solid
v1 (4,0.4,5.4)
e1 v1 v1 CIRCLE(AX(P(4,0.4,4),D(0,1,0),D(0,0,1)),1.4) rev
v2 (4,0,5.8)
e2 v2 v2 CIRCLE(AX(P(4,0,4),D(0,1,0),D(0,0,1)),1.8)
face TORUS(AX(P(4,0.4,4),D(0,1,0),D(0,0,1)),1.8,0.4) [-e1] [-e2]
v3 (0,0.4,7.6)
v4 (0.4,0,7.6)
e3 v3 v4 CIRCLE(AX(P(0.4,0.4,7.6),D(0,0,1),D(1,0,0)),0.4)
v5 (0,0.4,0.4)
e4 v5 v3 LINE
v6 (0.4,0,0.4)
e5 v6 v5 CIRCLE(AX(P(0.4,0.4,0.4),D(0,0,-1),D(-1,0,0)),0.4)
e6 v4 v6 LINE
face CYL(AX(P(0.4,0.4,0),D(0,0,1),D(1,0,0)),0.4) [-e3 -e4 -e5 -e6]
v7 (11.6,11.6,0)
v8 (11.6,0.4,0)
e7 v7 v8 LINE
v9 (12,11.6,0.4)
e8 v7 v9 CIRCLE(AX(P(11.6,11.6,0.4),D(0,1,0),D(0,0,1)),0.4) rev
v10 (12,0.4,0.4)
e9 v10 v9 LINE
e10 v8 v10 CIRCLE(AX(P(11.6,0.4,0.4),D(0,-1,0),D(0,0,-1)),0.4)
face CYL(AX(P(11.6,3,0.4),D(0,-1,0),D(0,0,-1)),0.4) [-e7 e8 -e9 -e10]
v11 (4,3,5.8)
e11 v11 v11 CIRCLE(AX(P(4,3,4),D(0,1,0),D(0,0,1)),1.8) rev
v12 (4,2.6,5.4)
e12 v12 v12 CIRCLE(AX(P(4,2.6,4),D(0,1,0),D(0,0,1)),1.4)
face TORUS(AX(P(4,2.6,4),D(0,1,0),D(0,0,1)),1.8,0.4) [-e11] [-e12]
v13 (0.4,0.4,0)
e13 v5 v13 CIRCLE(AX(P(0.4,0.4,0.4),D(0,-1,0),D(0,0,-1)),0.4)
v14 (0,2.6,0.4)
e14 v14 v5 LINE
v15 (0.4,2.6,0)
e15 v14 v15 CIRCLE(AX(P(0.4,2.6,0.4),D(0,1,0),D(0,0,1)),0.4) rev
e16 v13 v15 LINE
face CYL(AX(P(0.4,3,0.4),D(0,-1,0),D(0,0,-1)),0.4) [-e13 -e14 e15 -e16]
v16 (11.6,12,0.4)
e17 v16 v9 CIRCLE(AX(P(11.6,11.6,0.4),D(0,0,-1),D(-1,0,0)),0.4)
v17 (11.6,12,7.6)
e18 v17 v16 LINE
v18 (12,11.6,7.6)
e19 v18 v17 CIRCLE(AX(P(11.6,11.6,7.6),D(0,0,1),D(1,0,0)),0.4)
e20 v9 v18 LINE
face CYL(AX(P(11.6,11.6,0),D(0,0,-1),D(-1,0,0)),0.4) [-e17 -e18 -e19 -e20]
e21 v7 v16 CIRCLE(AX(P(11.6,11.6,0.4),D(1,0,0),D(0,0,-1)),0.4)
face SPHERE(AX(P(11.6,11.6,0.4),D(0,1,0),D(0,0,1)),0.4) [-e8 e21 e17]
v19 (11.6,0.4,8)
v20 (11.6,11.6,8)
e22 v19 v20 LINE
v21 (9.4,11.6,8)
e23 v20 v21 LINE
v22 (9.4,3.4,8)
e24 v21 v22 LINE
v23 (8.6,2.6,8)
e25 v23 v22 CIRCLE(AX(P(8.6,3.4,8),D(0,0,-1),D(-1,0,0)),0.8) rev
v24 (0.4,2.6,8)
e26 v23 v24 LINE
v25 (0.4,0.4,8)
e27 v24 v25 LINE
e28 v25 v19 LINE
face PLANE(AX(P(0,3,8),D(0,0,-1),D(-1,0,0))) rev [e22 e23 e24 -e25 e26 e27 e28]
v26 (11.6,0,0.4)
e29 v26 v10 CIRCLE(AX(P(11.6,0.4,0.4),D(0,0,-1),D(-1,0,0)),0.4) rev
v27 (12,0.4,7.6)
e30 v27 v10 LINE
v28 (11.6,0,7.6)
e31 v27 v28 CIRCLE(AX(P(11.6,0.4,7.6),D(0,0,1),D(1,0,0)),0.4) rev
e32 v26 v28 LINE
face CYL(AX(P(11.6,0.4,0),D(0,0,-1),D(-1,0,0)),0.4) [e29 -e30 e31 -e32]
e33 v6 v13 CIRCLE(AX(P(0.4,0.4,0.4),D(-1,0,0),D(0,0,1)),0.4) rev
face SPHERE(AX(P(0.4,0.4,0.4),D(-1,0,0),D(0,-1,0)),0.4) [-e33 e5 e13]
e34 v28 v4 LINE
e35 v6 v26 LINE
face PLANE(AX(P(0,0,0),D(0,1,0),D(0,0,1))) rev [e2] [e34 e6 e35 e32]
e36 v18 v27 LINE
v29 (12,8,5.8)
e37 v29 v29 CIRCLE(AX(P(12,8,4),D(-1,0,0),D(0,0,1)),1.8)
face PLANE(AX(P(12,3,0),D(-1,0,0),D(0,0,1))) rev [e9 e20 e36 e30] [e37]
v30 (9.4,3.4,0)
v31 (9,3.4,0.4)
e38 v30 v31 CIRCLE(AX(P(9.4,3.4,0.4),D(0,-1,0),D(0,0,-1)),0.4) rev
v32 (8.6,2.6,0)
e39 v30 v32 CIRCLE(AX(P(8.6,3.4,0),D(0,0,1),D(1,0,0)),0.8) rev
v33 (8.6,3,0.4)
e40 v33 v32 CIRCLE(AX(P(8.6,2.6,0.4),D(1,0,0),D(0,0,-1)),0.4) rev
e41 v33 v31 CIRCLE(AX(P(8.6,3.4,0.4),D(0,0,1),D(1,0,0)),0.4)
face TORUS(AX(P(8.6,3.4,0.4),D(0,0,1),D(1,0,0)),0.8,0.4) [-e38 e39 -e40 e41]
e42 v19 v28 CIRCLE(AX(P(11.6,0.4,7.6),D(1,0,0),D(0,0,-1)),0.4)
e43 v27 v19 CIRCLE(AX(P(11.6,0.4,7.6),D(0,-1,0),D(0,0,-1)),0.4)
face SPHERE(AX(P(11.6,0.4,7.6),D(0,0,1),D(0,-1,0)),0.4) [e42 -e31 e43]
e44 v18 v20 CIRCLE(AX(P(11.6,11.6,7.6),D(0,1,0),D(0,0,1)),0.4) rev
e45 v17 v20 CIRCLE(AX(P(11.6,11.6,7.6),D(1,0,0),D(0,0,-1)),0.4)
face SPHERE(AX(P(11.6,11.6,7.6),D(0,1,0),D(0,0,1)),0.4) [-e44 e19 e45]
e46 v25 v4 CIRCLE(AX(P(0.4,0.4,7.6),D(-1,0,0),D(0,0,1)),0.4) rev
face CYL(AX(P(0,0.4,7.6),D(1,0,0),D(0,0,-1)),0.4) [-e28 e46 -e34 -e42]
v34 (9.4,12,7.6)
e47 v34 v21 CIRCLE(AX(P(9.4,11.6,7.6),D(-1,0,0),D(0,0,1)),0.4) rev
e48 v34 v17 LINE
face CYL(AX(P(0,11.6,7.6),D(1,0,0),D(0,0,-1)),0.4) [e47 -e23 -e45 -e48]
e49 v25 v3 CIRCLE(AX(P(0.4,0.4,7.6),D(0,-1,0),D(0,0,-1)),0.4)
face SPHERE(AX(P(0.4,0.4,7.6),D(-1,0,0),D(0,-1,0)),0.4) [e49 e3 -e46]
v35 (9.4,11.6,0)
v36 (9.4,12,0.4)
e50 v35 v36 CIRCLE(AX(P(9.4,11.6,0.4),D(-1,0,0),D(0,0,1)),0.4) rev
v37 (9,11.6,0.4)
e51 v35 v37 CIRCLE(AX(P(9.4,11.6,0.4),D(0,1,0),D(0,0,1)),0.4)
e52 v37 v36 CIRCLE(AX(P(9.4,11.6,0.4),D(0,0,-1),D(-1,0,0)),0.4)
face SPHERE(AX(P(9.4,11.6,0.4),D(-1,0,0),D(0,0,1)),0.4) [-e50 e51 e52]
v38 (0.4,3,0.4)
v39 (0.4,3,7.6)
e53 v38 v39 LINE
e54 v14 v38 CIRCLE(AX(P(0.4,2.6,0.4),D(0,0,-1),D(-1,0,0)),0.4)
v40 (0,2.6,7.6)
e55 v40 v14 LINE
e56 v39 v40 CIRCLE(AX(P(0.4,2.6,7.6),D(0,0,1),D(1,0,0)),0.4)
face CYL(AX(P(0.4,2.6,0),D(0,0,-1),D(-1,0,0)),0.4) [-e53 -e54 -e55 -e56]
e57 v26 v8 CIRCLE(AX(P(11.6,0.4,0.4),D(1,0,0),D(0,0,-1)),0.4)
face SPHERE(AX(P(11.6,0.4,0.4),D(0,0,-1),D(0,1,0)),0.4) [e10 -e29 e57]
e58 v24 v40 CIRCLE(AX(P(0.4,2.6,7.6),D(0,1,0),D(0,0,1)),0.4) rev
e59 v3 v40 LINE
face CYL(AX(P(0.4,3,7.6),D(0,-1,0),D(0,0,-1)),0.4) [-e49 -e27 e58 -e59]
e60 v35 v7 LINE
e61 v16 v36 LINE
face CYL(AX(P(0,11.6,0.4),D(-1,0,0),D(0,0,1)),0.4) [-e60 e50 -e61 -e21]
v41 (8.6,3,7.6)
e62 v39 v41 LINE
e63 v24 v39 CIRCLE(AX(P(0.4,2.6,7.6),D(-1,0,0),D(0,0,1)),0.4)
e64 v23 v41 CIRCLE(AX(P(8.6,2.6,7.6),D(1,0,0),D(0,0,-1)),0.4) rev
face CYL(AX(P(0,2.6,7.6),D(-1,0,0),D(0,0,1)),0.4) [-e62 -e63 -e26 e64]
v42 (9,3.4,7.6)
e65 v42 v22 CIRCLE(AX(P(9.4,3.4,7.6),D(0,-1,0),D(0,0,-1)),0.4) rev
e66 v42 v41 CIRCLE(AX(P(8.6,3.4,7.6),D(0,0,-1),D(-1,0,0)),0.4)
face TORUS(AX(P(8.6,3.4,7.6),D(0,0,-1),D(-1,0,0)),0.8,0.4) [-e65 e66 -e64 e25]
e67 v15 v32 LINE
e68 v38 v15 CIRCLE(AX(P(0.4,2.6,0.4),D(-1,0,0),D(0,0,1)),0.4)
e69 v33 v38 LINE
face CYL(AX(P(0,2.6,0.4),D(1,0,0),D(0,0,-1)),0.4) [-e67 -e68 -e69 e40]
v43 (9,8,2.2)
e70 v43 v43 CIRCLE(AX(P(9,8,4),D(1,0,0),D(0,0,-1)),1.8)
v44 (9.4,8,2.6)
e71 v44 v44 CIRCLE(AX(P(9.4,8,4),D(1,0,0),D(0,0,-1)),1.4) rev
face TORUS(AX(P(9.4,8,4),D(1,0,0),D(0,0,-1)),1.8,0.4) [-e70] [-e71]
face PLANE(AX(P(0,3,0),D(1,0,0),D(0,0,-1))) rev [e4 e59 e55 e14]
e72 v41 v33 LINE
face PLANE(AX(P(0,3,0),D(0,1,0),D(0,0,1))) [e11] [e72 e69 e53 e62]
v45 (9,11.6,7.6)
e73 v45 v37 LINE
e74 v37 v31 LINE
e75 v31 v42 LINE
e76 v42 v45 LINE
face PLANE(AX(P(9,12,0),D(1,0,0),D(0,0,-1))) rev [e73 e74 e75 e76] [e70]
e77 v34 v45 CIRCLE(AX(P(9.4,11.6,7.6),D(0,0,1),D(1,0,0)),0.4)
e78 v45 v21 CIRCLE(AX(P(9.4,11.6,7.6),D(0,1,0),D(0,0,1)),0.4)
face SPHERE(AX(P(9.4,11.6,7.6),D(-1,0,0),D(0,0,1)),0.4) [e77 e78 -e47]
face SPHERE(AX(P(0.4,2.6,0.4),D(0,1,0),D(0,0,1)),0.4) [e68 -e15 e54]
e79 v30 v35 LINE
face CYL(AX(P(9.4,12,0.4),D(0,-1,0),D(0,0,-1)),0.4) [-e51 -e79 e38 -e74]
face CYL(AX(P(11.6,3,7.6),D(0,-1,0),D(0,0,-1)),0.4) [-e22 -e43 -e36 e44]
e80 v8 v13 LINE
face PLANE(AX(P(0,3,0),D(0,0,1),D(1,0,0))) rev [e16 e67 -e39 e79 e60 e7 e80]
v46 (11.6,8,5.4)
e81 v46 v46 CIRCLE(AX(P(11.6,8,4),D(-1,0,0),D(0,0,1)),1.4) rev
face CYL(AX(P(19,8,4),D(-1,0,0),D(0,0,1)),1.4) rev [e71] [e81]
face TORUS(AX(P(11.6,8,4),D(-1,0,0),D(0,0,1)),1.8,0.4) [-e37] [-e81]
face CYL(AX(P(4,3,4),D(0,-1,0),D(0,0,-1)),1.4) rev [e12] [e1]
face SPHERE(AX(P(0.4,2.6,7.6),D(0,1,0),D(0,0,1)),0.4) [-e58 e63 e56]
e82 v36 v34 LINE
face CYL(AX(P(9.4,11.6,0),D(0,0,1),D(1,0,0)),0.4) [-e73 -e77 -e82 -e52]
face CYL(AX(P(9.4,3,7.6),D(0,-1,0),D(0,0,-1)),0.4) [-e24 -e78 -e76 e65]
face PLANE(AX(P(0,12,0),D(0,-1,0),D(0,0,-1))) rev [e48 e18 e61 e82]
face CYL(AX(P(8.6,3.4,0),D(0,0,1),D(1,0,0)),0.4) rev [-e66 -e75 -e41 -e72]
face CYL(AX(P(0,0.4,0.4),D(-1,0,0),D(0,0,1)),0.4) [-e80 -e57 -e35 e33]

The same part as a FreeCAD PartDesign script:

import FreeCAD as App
import Part
import Sketcher

V = App.Vector
Q = App.Units.Quantity

doc = App.newDocument("Part")
body = doc.addObject("PartDesign::Body", "Body")

# Sketch on XZ plane
sketch1 = body.newObject("Sketcher::SketchObject", "Sketch")
sketch1.AttachmentSupport = (doc.getObject("XZ_Plane"), [""])
sketch1.MapMode = "FlatFace"
sketch1.addGeometry([
    Part.LineSegment(V(0, 0, 0), V(0, 8, 0)),  # 0
    Part.LineSegment(V(0, 8, 0), V(12, 8, 0)),  # 1
    Part.LineSegment(V(12, 8, 0), V(12, 0, 0)),  # 2
    Part.LineSegment(V(12, 0, 0), V(0, 0, 0)),  # 3
    Part.Circle(V(4, 4, 0), V(0, 0, 1), 1.4),  # 4
], False)
sketch1.addConstraint([
    Sketcher.Constraint("Coincident", 0, 2, 1, 1),
    Sketcher.Constraint("Coincident", 1, 2, 2, 1),
    Sketcher.Constraint("Coincident", 2, 2, 3, 1),
    Sketcher.Constraint("Coincident", 3, 2, 0, 1),
    Sketcher.Constraint("Vertical", 0),
    Sketcher.Constraint("Horizontal", 1),
    Sketcher.Constraint("Vertical", 2),
    Sketcher.Constraint("Horizontal", 3),
    Sketcher.Constraint("Coincident", 3, 2, -1, 1),
    Sketcher.Constraint("Diameter", 4, Q("2.8 mm")),
    Sketcher.Constraint("DistanceX", 1, 1, 1, 2, Q("12 mm")),
    Sketcher.Constraint("DistanceY", 0, 1, 0, 2, Q("8 mm")),
    Sketcher.Constraint("DistanceX", -1, 1, 4, 3, Q("4 mm")),
    Sketcher.Constraint("DistanceY", -1, 1, 4, 3, Q("4 mm")),
])
pad1 = body.newObject("PartDesign::Pad", "Pad")
pad1.Profile = sketch1
pad1.Length = 3
pad1.Reversed = True

# Sketch on XZ plane
sketch2 = body.newObject("Sketcher::SketchObject", "Sketch001")
sketch2.AttachmentSupport = (doc.getObject("XZ_Plane"), [""])
sketch2.MapMode = "FlatFace"
sketch2.AttachmentOffset = App.Placement(V(0, 0, -3), App.Rotation())
sketch2.addGeometry([
    Part.LineSegment(V(9, 0, 0), V(9, 8, 0)),
    Part.LineSegment(V(9, 8, 0), V(12, 8, 0)),
    Part.LineSegment(V(12, 8, 0), V(12, 0, 0)),
    Part.LineSegment(V(12, 0, 0), V(9, 0, 0)),
], False)
sketch2.addConstraint([
    Sketcher.Constraint("Coincident", 0, 2, 1, 1),
    Sketcher.Constraint("Coincident", 1, 2, 2, 1),
    Sketcher.Constraint("Coincident", 2, 2, 3, 1),
    Sketcher.Constraint("Coincident", 3, 2, 0, 1),
    Sketcher.Constraint("Vertical", 0),
    Sketcher.Constraint("Horizontal", 1),
    Sketcher.Constraint("Vertical", 2),
    Sketcher.Constraint("Horizontal", 3),
    Sketcher.Constraint("PointOnObject", 2, 2, -1),
    Sketcher.Constraint("DistanceX", 1, 1, 1, 2, Q("3 mm")),
    Sketcher.Constraint("DistanceY", 0, 1, 0, 2, Q("8 mm")),
    Sketcher.Constraint("DistanceX", -1, 1, 0, 2, Q("9 mm")),
])
pad2 = body.newObject("PartDesign::Pad", "Pad001")
pad2.Profile = sketch2
pad2.Length = 9
pad2.Reversed = True

# Sketch on YZ plane
sketch3 = body.newObject("Sketcher::SketchObject", "Sketch002")
sketch3.AttachmentSupport = (doc.getObject("YZ_Plane"), [""])
sketch3.MapMode = "FlatFace"
sketch3.AttachmentOffset = App.Placement(V(0, 0, 9), App.Rotation())
sketch3.addGeometry(Part.Circle(V(8, 4, 0), V(0, 0, 1), 1.4), False)
sketch3.addConstraint([
    Sketcher.Constraint("Diameter", 0, Q("2.8 mm")),
    Sketcher.Constraint("DistanceX", -1, 1, 0, 3, Q("8 mm")),
    Sketcher.Constraint("DistanceY", -1, 1, 0, 3, Q("4 mm")),
])
pocket1 = body.newObject("PartDesign::Pocket", "Pocket")
pocket1.Profile = sketch3
pocket1.Length = 10
pocket1.Reversed = True
doc.recompute()

fillet = body.newObject("PartDesign::Fillet", "Fillet")
fillet.Base = (pocket1, ["Edge1"])
fillet.UseAllEdges = True
fillet.Radius = 0.4

doc.recompute()
